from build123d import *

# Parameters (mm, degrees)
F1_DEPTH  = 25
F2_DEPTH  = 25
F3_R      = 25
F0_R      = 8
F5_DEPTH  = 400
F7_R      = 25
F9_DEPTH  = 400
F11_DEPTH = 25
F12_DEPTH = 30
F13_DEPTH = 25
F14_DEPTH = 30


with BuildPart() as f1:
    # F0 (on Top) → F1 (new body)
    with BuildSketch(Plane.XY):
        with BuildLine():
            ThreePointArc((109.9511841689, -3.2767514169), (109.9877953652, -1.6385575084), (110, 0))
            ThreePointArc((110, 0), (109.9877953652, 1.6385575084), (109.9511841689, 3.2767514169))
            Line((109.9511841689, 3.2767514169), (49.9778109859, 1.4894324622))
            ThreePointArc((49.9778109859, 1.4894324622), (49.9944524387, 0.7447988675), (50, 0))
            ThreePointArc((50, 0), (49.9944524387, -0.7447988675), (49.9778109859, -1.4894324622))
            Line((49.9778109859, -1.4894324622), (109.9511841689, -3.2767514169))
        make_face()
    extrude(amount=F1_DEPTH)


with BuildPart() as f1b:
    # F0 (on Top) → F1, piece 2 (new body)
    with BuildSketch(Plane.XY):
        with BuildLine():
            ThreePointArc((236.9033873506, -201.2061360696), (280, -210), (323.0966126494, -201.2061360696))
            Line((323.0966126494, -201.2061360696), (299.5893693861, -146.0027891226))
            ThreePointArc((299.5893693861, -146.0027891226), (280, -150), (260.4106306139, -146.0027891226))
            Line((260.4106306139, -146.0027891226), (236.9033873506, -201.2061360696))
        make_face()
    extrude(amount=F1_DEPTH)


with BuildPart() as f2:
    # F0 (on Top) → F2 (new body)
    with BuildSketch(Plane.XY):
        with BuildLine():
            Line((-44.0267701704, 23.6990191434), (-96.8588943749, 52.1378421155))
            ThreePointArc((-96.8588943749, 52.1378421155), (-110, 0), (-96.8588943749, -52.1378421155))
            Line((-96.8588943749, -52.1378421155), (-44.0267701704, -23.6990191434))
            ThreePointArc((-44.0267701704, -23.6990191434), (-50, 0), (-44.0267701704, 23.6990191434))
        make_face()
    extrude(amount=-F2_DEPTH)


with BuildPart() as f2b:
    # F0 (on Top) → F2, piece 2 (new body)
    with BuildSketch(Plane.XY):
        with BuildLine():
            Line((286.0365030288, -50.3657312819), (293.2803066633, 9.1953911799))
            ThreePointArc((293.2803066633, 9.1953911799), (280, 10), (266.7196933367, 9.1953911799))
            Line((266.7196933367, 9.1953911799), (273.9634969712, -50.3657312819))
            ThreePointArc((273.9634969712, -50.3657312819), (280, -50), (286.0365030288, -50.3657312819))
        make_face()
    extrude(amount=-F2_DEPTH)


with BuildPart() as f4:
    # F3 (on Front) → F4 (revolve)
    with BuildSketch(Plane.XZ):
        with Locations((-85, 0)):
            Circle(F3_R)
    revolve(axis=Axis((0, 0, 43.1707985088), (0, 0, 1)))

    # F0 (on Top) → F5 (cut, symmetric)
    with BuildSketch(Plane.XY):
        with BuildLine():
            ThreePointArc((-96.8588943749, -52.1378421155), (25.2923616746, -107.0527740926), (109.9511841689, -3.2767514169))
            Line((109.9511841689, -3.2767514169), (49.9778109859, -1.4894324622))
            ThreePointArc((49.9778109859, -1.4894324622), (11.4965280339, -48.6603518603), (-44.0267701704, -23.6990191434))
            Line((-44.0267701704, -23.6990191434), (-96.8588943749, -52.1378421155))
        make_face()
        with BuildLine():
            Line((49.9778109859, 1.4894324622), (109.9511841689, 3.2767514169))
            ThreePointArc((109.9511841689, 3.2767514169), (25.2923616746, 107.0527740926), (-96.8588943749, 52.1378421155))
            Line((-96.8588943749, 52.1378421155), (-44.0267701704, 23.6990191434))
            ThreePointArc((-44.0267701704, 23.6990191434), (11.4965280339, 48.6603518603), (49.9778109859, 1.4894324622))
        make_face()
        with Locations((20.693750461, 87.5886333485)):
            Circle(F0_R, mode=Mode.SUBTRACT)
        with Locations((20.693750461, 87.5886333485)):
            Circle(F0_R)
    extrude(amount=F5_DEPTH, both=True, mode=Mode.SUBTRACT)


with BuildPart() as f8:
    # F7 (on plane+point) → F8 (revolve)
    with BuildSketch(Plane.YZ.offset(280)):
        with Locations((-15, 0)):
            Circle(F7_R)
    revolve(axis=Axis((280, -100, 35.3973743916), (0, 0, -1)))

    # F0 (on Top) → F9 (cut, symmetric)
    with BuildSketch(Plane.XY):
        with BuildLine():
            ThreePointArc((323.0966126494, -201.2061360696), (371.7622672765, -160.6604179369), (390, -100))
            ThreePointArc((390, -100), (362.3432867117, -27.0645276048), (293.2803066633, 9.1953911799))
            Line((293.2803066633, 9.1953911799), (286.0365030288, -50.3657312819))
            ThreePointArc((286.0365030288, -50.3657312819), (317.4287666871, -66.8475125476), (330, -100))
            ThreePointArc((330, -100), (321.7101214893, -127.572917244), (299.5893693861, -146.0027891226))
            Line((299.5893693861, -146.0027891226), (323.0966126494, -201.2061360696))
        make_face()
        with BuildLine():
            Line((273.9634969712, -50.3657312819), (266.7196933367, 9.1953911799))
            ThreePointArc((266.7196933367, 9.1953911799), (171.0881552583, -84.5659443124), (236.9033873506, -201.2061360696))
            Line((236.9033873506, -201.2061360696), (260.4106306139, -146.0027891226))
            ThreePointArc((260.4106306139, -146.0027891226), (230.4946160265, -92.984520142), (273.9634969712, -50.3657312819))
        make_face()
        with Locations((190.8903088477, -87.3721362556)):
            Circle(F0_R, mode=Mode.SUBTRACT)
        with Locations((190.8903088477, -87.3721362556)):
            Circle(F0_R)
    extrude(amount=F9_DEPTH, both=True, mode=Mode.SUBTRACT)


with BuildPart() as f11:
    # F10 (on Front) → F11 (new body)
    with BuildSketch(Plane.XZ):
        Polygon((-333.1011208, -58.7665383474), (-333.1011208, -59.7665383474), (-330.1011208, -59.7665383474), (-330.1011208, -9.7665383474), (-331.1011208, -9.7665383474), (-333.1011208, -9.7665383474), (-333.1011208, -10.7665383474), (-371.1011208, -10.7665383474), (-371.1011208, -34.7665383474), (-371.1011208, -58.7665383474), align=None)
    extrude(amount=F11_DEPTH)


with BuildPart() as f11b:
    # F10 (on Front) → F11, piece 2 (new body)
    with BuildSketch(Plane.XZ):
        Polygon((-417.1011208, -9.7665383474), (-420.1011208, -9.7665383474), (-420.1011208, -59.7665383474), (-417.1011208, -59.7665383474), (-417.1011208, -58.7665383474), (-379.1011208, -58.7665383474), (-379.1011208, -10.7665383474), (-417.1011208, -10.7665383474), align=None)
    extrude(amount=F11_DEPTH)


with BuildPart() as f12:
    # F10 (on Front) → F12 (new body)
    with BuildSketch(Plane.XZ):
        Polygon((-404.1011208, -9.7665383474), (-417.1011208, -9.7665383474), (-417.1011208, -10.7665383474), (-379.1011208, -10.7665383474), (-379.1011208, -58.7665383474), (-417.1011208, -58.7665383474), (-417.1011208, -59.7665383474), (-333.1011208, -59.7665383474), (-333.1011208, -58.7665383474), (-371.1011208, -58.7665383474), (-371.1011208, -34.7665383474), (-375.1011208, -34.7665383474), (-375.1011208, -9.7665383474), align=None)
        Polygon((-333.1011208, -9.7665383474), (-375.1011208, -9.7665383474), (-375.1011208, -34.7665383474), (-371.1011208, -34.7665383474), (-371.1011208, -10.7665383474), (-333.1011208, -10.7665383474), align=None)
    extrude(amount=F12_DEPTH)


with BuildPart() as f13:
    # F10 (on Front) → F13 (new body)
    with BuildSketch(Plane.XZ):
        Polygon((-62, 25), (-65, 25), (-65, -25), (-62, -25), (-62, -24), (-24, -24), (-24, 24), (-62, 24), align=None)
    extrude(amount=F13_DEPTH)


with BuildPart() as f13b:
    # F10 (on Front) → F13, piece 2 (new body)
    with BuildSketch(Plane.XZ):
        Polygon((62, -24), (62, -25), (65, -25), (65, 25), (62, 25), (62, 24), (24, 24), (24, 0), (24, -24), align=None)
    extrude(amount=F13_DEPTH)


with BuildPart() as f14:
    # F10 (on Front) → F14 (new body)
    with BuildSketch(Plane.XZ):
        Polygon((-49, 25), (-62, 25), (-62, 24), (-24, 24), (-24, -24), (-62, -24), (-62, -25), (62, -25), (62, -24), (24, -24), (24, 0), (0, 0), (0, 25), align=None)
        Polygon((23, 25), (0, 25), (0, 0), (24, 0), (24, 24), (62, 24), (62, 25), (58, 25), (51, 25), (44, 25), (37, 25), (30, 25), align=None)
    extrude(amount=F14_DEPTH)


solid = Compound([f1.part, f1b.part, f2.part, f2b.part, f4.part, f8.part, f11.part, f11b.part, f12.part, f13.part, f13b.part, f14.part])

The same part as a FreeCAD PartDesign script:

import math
import FreeCAD as App
import Part
import Sketcher
Q = App.Units.Quantity


def add_polygon(sketch, points):
    """Adds a closed chain of lines whose ends are joined by coincident constraints."""
    first, n = sketch.GeometryCount, len(points)
    for a, b in zip(points, points[1:] + points[:1]):
        sketch.addGeometry(Part.LineSegment(App.Vector(*a, 0), App.Vector(*b, 0)), False)
    for i in range(n):
        sketch.addConstraint(Sketcher.Constraint("Coincident", first + i, 2, first + (i + 1) % n, 1))

doc = App.newDocument("Part")
params = doc.addObject("Spreadsheet::Sheet", "Params")
for row, (alias, value) in enumerate([
    ("sketch1_radius", "110 mm"),
    ("sketch1_radius2", "50 mm"),
    ("pad1_length", "25 mm"),
    ("sketch2_radius", "110 mm"),
    ("sketch2_radius2", "50 mm"),
    ("pad2_length", "25 mm"),
    ("sketch3_radius", "110 mm"),
    ("sketch3_radius2", "50 mm"),
    ("pad3_length", "25 mm"),
    ("sketch4_radius", "110 mm"),
    ("sketch4_radius2", "50 mm"),
    ("pad4_length", "25 mm"),
    ("sketch5_diameter", "50 mm"),
    ("revolution_angle", "360 deg"),
    ("sketch6_radius", "110 mm"),
    ("sketch6_radius2", "50 mm"),
    ("pocket1_length", "800 mm"),
    ("sketch7_diameter", "50 mm"),
    ("sketch7_height", "10 mm"),
    ("revolution2_angle", "360 deg"),
    ("sketch8_radius", "110 mm"),
    ("sketch8_radius2", "50 mm"),
    ("pocket2_length", "800 mm"),
    ("sketch9_width", "3 mm"),
    ("sketch9_width2", "38 mm"),
    ("sketch9_height", "1 mm"),
    ("sketch9_height2", "50 mm"),
    ("pad5_length", "25 mm"),
    ("sketch10_width", "3 mm"),
    ("sketch10_width2", "38 mm"),
    ("sketch10_height", "50 mm"),
    ("sketch10_height2", "1 mm"),
    ("pad6_length", "25 mm"),
    ("sketch11_width", "38 mm"),
    ("sketch11_width2", "84 mm"),
    ("sketch11_height", "1 mm"),
    ("sketch11_height2", "48 mm"),
    ("pad7_length", "30 mm"),
    ("sketch12_width", "3 mm"),
    ("sketch12_width2", "38 mm"),
    ("sketch12_height", "50 mm"),
    ("sketch12_height2", "1 mm"),
    ("pad8_length", "25 mm"),
    ("sketch13_width", "3 mm"),
    ("sketch13_width2", "38 mm"),
    ("sketch13_height", "1 mm"),
    ("sketch13_height2", "50 mm"),
    ("pad9_length", "25 mm"),
    ("sketch14_width", "38 mm"),
    ("sketch14_width2", "124 mm"),
    ("sketch14_height", "1 mm"),
    ("sketch14_height2", "48 mm"),
    ("pad10_length", "30 mm"),
], start=1):
    params.set(f"A{row}", alias)
    params.set(f"B{row}", "=" + value)
    params.setAlias(f"B{row}", alias)

body = doc.addObject("PartDesign::Body", "Body")

sketch1 = body.newObject("Sketcher::SketchObject", "Sketch")
sketch1.AttachmentSupport = (doc.getObject("XY_Plane"), [""])
sketch1.MapMode = "FlatFace"
sketch1.addGeometry(Part.ArcOfCircle(Part.Circle(App.Vector(0, 0, 0), App.Vector(0, 0, 1), 110), math.radians(-1.71), math.radians(0)), False)
sketch1.addGeometry(Part.ArcOfCircle(Part.Circle(App.Vector(0, 0, 0), App.Vector(0, 0, 1), 110), math.radians(0), math.radians(1.71)), False)
sketch1.addGeometry(Part.LineSegment(App.Vector(110, 3.3, 0), App.Vector(50, 1.5, 0)), False)
sketch1.addGeometry(Part.ArcOfCircle(Part.Circle(App.Vector(0, 0, 0), App.Vector(0, 0, 1), 50), math.radians(0), math.radians(1.71)), False)
sketch1.addGeometry(Part.ArcOfCircle(Part.Circle(App.Vector(0, 0, 0), App.Vector(0, 0, 1), 50), math.radians(-1.71), math.radians(0)), False)
sketch1.addGeometry(Part.LineSegment(App.Vector(50, -1.5, 0), App.Vector(110, -3.3, 0)), False)
sketch1.addConstraint(Sketcher.Constraint("Tangent", 0, 2, 1, 1))
sketch1.addConstraint(Sketcher.Constraint("Coincident", 1, 2, 2, 1))
sketch1.addConstraint(Sketcher.Constraint("Coincident", 2, 2, 3, 2))
sketch1.addConstraint(Sketcher.Constraint("Tangent", 3, 1, 4, 2))
sketch1.addConstraint(Sketcher.Constraint("Coincident", 4, 1, 5, 1))
sketch1.addConstraint(Sketcher.Constraint("Coincident", 5, 2, 0, 1))
sketch1.addConstraint(Sketcher.Constraint("Coincident", 0, 3, -1, 1))
sketch1.addConstraint(Sketcher.Constraint("Coincident", 3, 3, -1, 1))
sketch1.addConstraint(Sketcher.Constraint("Equal", 0, 1))
sketch1.addConstraint(Sketcher.Constraint("Equal", 3, 4))
sketch1.addConstraint(Sketcher.Constraint("PointOnObject", 0, 2, -1))
sketch1.addConstraint(Sketcher.Constraint("PointOnObject", 3, 1, -1))
sketch1.addConstraint(Sketcher.Constraint("Vertical", 2, 2, 4, 1))
sketch1.addConstraint(Sketcher.Constraint("Vertical", 1, 2, 5, 2))
sketch1.addConstraint(Sketcher.Constraint("Radius", 0, Q("110 mm")))
sketch1.addConstraint(Sketcher.Constraint("Radius", 3, Q("50 mm")))
sketch1.addConstraint(Sketcher.Constraint("DistanceY", -1, 1, 1, 2, Q("3.276751 mm")))
sketch1.addConstraint(Sketcher.Constraint("DistanceX", -1, 1, 2, 2, Q("49.977811 mm")))
sketch1.setExpression("Constraints[14]", "Params.sketch1_radius")
sketch1.setExpression("Constraints[15]", "Params.sketch1_radius2")
pad1 = body.newObject("PartDesign::Pad", "Pad")
pad1.Profile = sketch1
pad1.setExpression("Length", "Params.pad1_length")
body2 = doc.addObject("PartDesign::Body", "Body001")

sketch2 = body2.newObject("Sketcher::SketchObject", "Sketch001")
sketch2.AttachmentSupport = (doc.getObject("XY_Plane001"), [""])
sketch2.MapMode = "FlatFace"
sketch2.addGeometry(Part.ArcOfCircle(Part.Circle(App.Vector(280, -100, 0), App.Vector(0, 0, 1), 110), math.radians(-113), math.radians(-67)), False)
sketch2.addGeometry(Part.LineSegment(App.Vector(323, -201, 0), App.Vector(300, -146, 0)), False)
sketch2.addGeometry(Part.ArcOfCircle(Part.Circle(App.Vector(280, -100, 0), App.Vector(0, 0, 1), 50), math.radians(-113), math.radians(-67)), False)
sketch2.addGeometry(Part.LineSegment(App.Vector(260, -146, 0), App.Vector(237, -201, 0)), False)
sketch2.addConstraint(Sketcher.Constraint("Coincident", 0, 2, 1, 1))
sketch2.addConstraint(Sketcher.Constraint("Coincident", 1, 2, 2, 2))
sketch2.addConstraint(Sketcher.Constraint("Coincident", 2, 1, 3, 1))
sketch2.addConstraint(Sketcher.Constraint("Coincident", 3, 2, 0, 1))
sketch2.addConstraint(Sketcher.Constraint("Coincident", 2, 3, 0, 3))
sketch2.addConstraint(Sketcher.Constraint("Horizontal", 1, 2, 2, 1))
sketch2.addConstraint(Sketcher.Constraint("Horizontal", 0, 2, 3, 2))
sketch2.addConstraint(Sketcher.Constraint("Radius", 0, Q("110 mm")))
sketch2.addConstraint(Sketcher.Constraint("Radius", 2, Q("50 mm")))
sketch2.addConstraint(Sketcher.Constraint("DistanceX", -1, 1, 0, 3, Q("280 mm")))
sketch2.addConstraint(Sketcher.Constraint("DistanceY", 0, 3, -1, 1, Q("100 mm")))
sketch2.addConstraint(Sketcher.Constraint("DistanceX", -1, 1, 1, 2, Q("299.589369 mm")))
sketch2.addConstraint(Sketcher.Constraint("DistanceX", -1, 1, 0, 2, Q("323.096613 mm")))
sketch2.setExpression("Constraints[7]", "Params.sketch2_radius")
sketch2.setExpression("Constraints[8]", "Params.sketch2_radius2")
pad2 = body2.newObject("PartDesign::Pad", "Pad001")
pad2.Profile = sketch2
pad2.setExpression("Length", "Params.pad2_length")
body3 = doc.addObject("PartDesign::Body", "Body002")

sketch3 = body3.newObject("Sketcher::SketchObject", "Sketch002")
sketch3.AttachmentSupport = (doc.getObject("XY_Plane002"), [""])
sketch3.MapMode = "FlatFace"
sketch3.addGeometry(Part.LineSegment(App.Vector(-44, 24, 0), App.Vector(-97, 52, 0)), False)
sketch3.addGeometry(Part.ArcOfCircle(Part.Circle(App.Vector(0, 0, 0), App.Vector(0, 0, 1), 110), math.radians(152), math.radians(208)), False)
sketch3.addGeometry(Part.LineSegment(App.Vector(-97, -52, 0), App.Vector(-44, -24, 0)), False)
sketch3.addGeometry(Part.ArcOfCircle(Part.Circle(App.Vector(0, 0, 0), App.Vector(0, 0, 1), 50), math.radians(152), math.radians(208)), False)
sketch3.addConstraint(Sketcher.Constraint("Coincident", 0, 2, 1, 1))
sketch3.addConstraint(Sketcher.Constraint("Coincident", 1, 2, 2, 1))
sketch3.addConstraint(Sketcher.Constraint("Coincident", 2, 2, 3, 2))
sketch3.addConstraint(Sketcher.Constraint("Coincident", 3, 1, 0, 1))
sketch3.addConstraint(Sketcher.Constraint("Coincident", 1, 3, -1, 1))
sketch3.addConstraint(Sketcher.Constraint("Coincident", 3, 3, -1, 1))
sketch3.addConstraint(Sketcher.Constraint("Vertical", 0, 2, 1, 2))
sketch3.addConstraint(Sketcher.Constraint("Vertical", 2, 2, 3, 1))
sketch3.addConstraint(Sketcher.Constraint("Radius", 1, Q("110 mm")))
sketch3.addConstraint(Sketcher.Constraint("Radius", 3, Q("50 mm")))
sketch3.addConstraint(Sketcher.Constraint("DistanceX", 2, 2, -1, 1, Q("44.02677 mm")))
sketch3.addConstraint(Sketcher.Constraint("DistanceY", 2, 2, 0, 2, Q("75.836861 mm")))
sketch3.setExpression("Constraints[8]", "Params.sketch3_radius")
sketch3.setExpression("Constraints[9]", "Params.sketch3_radius2")
pad3 = body3.newObject("PartDesign::Pad", "Pad002")
pad3.Profile = sketch3
pad3.setExpression("Length", "Params.pad3_length")
pad3.Reversed = True
body4 = doc.addObject("PartDesign::Body", "Body003")

sketch4 = body4.newObject("Sketcher::SketchObject", "Sketch003")
sketch4.AttachmentSupport = (doc.getObject("XY_Plane003"), [""])
sketch4.MapMode = "FlatFace"
sketch4.addGeometry(Part.LineSegment(App.Vector(286, -50, 0), App.Vector(293, 9, 0)), False)
sketch4.addGeometry(Part.ArcOfCircle(Part.Circle(App.Vector(280, -100, 0), App.Vector(0, 0, 1), 110), math.radians(83.07), math.radians(96.93)), False)
sketch4.addGeometry(Part.LineSegment(App.Vector(267, 9, 0), App.Vector(274, -50, 0)), False)
sketch4.addGeometry(Part.ArcOfCircle(Part.Circle(App.Vector(280, -100, 0), App.Vector(0, 0, 1), 50), math.radians(83.07), math.radians(96.93)), False)
sketch4.addConstraint(Sketcher.Constraint("Coincident", 0, 2, 1, 1))
sketch4.addConstraint(Sketcher.Constraint("Coincident", 1, 2, 2, 1))
sketch4.addConstraint(Sketcher.Constraint("Coincident", 2, 2, 3, 2))
sketch4.addConstraint(Sketcher.Constraint("Coincident", 3, 1, 0, 1))
sketch4.addConstraint(Sketcher.Constraint("Coincident", 3, 3, 1, 3))
sketch4.addConstraint(Sketcher.Constraint("Horizontal", 0, 2, 1, 2))
sketch4.addConstraint(Sketcher.Constraint("Horizontal", 2, 2, 3, 1))
sketch4.addConstraint(Sketcher.Constraint("Radius", 1, Q("110 mm")))
sketch4.addConstraint(Sketcher.Constraint("Radius", 3, Q("50 mm")))
sketch4.addConstraint(Sketcher.Constraint("DistanceX", -1, 1, 1, 3, Q("280 mm")))
sketch4.addConstraint(Sketcher.Constraint("DistanceY", 1, 3, -1, 1, Q("100 mm")))
sketch4.addConstraint(Sketcher.Constraint("DistanceY", -1, 1, 0, 2, Q("9.195391 mm")))
sketch4.addConstraint(Sketcher.Constraint("DistanceY", 2, 2, -1, 1, Q("50.365731 mm")))
sketch4.setExpression("Constraints[7]", "Params.sketch4_radius")
sketch4.setExpression("Constraints[8]", "Params.sketch4_radius2")
pad4 = body4.newObject("PartDesign::Pad", "Pad003")
pad4.Profile = sketch4
pad4.setExpression("Length", "Params.pad4_length")
pad4.Reversed = True
body5 = doc.addObject("PartDesign::Body", "Body004")
body5.AllowCompound = True

sketch5 = body5.newObject("Sketcher::SketchObject", "Sketch004")
sketch5.AttachmentSupport = (doc.getObject("XZ_Plane004"), [""])
sketch5.MapMode = "FlatFace"
sketch5.addGeometry(Part.Circle(App.Vector(-85, 0, 0), App.Vector(0, 0, 1), 25), False)
sketch5.addConstraint(Sketcher.Constraint("PointOnObject", 0, 3, -1))
sketch5.addConstraint(Sketcher.Constraint("Diameter", 0, Q("50 mm")))
sketch5.addConstraint(Sketcher.Constraint("DistanceX", 0, 3, -1, 1, Q("85 mm")))
sketch5.setExpression("Constraints[1]", "Params.sketch5_diameter")
revolution = body5.newObject("PartDesign::Revolution", "Revolution")
revolution.Profile = sketch5
revolution.ReferenceAxis = (sketch5, ["V_Axis"])
revolution.setExpression("Angle", "Params.revolution_angle")

sketch6 = body5.newObject("Sketcher::SketchObject", "Sketch005")
sketch6.AttachmentSupport = (doc.getObject("XY_Plane004"), [""])
sketch6.MapMode = "FlatFace"
sketch6.addGeometry(Part.ArcOfCircle(Part.Circle(App.Vector(0, 0, 0), App.Vector(0, 0, 1), 110), math.radians(-152), math.radians(-2)), False)
sketch6.addGeometry(Part.LineSegment(App.Vector(110, -3, 0), App.Vector(50, -1, 0)), False)
sketch6.addGeometry(Part.ArcOfCircle(Part.Circle(App.Vector(0, 0, 0), App.Vector(0, 0, 1), 50), math.radians(-152), math.radians(-2)), False)
sketch6.addGeometry(Part.LineSegment(App.Vector(-44, -24, 0), App.Vector(-97, -52, 0)), False)
sketch6.addGeometry(Part.LineSegment(App.Vector(50, 1, 0), App.Vector(110, 3, 0)), False)
sketch6.addGeometry(Part.ArcOfCircle(Part.Circle(App.Vector(0, 0, 0), App.Vector(0, 0, 1), 110), math.radians(2), math.radians(152)), False)
sketch6.addGeometry(Part.LineSegment(App.Vector(-97, 52, 0), App.Vector(-44, 24, 0)), False)
sketch6.addGeometry(Part.ArcOfCircle(Part.Circle(App.Vector(0, 0, 0), App.Vector(0, 0, 1), 50), math.radians(2), math.radians(152)), False)
sketch6.addConstraint(Sketcher.Constraint("Coincident", 0, 2, 1, 1))
sketch6.addConstraint(Sketcher.Constraint("Coincident", 1, 2, 2, 2))
sketch6.addConstraint(Sketcher.Constraint("Coincident", 2, 1, 3, 1))
sketch6.addConstraint(Sketcher.Constraint("Coincident", 3, 2, 0, 1))
sketch6.addConstraint(Sketcher.Constraint("Coincident", 4, 2, 5, 1))
sketch6.addConstraint(Sketcher.Constraint("Coincident", 5, 2, 6, 1))
sketch6.addConstraint(Sketcher.Constraint("Coincident", 6, 2, 7, 2))
sketch6.addConstraint(Sketcher.Constraint("Coincident", 7, 1, 4, 1))
sketch6.addConstraint(Sketcher.Constraint("Coincident", 0, 3, -1, 1))
sketch6.addConstraint(Sketcher.Constraint("Coincident", 2, 3, -1, 1))
sketch6.addConstraint(Sketcher.Constraint("Coincident", 5, 3, -1, 1))
sketch6.addConstraint(Sketcher.Constraint("Coincident", 7, 3, -1, 1))
sketch6.addConstraint(Sketcher.Constraint("Equal", 0, 5))
sketch6.addConstraint(Sketcher.Constraint("Equal", 2, 7))
sketch6.addConstraint(Sketcher.Constraint("Vertical", 0, 2, 4, 2))
sketch6.addConstraint(Sketcher.Constraint("Vertical", 3, 2, 5, 2))
sketch6.addConstraint(Sketcher.Constraint("Vertical", 2, 1, 6, 2))
sketch6.addConstraint(Sketcher.Constraint("Vertical", 1, 2, 7, 1))
sketch6.addConstraint(Sketcher.Constraint("Radius", 0, Q("110 mm")))
sketch6.addConstraint(Sketcher.Constraint("Radius", 2, Q("50 mm")))
sketch6.addConstraint(Sketcher.Constraint("DistanceY", 0, 2, -1, 1, Q("3.276751 mm")))
sketch6.addConstraint(Sketcher.Constraint("DistanceX", -1, 1, 1, 2, Q("49.977811 mm")))
sketch6.addConstraint(Sketcher.Constraint("DistanceX", 2, 1, -1, 1, Q("44.02677 mm")))
sketch6.addConstraint(Sketcher.Constraint("DistanceY", 2, 1, 5, 2, Q("75.836861 mm")))
sketch6.setExpression("Constraints[18]", "Params.sketch6_radius")
sketch6.setExpression("Constraints[19]", "Params.sketch6_radius2")
pocket1 = body5.newObject("PartDesign::Pocket", "Pocket")
pocket1.Profile = sketch6
pocket1.setExpression("Length", "Params.pocket1_length")
pocket1.Midplane = True
body6 = doc.addObject("PartDesign::Body", "Body005")
body6.AllowCompound = True

sketch7 = body6.newObject("Sketcher::SketchObject", "Sketch006")
sketch7.AttachmentSupport = (doc.getObject("YZ_Plane005"), [""])
sketch7.MapMode = "FlatFace"
sketch7.AttachmentOffset = App.Placement(App.Vector(0, 0, 280), App.Rotation())
sketch7.addGeometry(Part.Circle(App.Vector(-15, 0, 0), App.Vector(0, 0, 1), 25), False)
sketch7.addGeometry(Part.LineSegment(App.Vector(-100, 0, 0), App.Vector(-100, -10, 0)), True)
sketch7.addConstraint(Sketcher.Constraint("Vertical", 1))
sketch7.addConstraint(Sketcher.Constraint("PointOnObject", 0, 3, -1))
sketch7.addConstraint(Sketcher.Constraint("PointOnObject", 1, 1, -1))
sketch7.addConstraint(Sketcher.Constraint("Diameter", 0, Q("50 mm")))
sketch7.addConstraint(Sketcher.Constraint("DistanceY", 1, 2, 1, 1, Q("10 mm")))
sketch7.addConstraint(Sketcher.Constraint("DistanceX", 0, 3, -1, 1, Q("15 mm")))
sketch7.addConstraint(Sketcher.Constraint("DistanceX", 1, 1, -1, 1, Q("100 mm")))
sketch7.setExpression("Constraints[3]", "Params.sketch7_diameter")
sketch7.setExpression("Constraints[4]", "Params.sketch7_height")
revolution2 = body6.newObject("PartDesign::Revolution", "Revolution001")
revolution2.Profile = sketch7
revolution2.ReferenceAxis = (sketch7, ["Axis0"])
revolution2.setExpression("Angle", "Params.revolution2_angle")

sketch8 = body6.newObject("Sketcher::SketchObject", "Sketch007")
sketch8.AttachmentSupport = (doc.getObject("XY_Plane005"), [""])
sketch8.MapMode = "FlatFace"
sketch8.addGeometry(Part.ArcOfCircle(Part.Circle(App.Vector(280, -100, 0), App.Vector(0, 0, 1), 110), math.radians(-67), math.radians(83)), False)
sketch8.addGeometry(Part.LineSegment(App.Vector(293, 9, 0), App.Vector(286, -50, 0)), False)
sketch8.addGeometry(Part.ArcOfCircle(Part.Circle(App.Vector(280, -100, 0), App.Vector(0, 0, 1), 50), math.radians(0), math.radians(83)), False)
sketch8.addGeometry(Part.ArcOfCircle(Part.Circle(App.Vector(280, -100, 0), App.Vector(0, 0, 1), 50), math.radians(-67), math.radians(0)), False)
sketch8.addGeometry(Part.LineSegment(App.Vector(300, -146, 0), App.Vector(323, -201, 0)), False)
sketch8.addGeometry(Part.LineSegment(App.Vector(274, -50, 0), App.Vector(267, 9, 0)), False)
sketch8.addGeometry(Part.ArcOfCircle(Part.Circle(App.Vector(280, -100, 0), App.Vector(0, 0, 1), 110), math.radians(97), math.radians(247)), False)
sketch8.addGeometry(Part.LineSegment(App.Vector(237, -201, 0), App.Vector(260, -146, 0)), False)
sketch8.addGeometry(Part.ArcOfCircle(Part.Circle(App.Vector(280, -100, 0), App.Vector(0, 0, 1), 50), math.radians(97), math.radians(247)), False)
sketch8.addConstraint(Sketcher.Constraint("Coincident", 0, 2, 1, 1))
sketch8.addConstraint(Sketcher.Constraint("Coincident", 1, 2, 2, 2))
sketch8.addConstraint(Sketcher.Constraint("Tangent", 2, 1, 3, 2))
sketch8.addConstraint(Sketcher.Constraint("Coincident", 3, 1, 4, 1))
sketch8.addConstraint(Sketcher.Constraint("Coincident", 4, 2, 0, 1))
sketch8.addConstraint(Sketcher.Constraint("Coincident", 5, 2, 6, 1))
sketch8.addConstraint(Sketcher.Constraint("Coincident", 6, 2, 7, 1))
sketch8.addConstraint(Sketcher.Constraint("Coincident", 7, 2, 8, 2))
sketch8.addConstraint(Sketcher.Constraint("Coincident", 8, 1, 5, 1))
sketch8.addConstraint(Sketcher.Constraint("Coincident", 2, 3, 0, 3))
sketch8.addConstraint(Sketcher.Constraint("Coincident", 6, 3, 0, 3))
sketch8.addConstraint(Sketcher.Constraint("Coincident", 8, 3, 0, 3))
sketch8.addConstraint(Sketcher.Constraint("Equal", 2, 3))
sketch8.addConstraint(Sketcher.Constraint("Equal", 0, 6))
sketch8.addConstraint(Sketcher.Constraint("Equal", 3, 8))
sketch8.addConstraint(Sketcher.Constraint("Horizontal", 8, 3, 2, 1))
sketch8.addConstraint(Sketcher.Constraint("Horizontal", 0, 2, 5, 2))
sketch8.addConstraint(Sketcher.Constraint("Horizontal", 4, 2, 6, 2))
sketch8.addConstraint(Sketcher.Constraint("Horizontal", 3, 1, 7, 2))
sketch8.addConstraint(Sketcher.Constraint("Horizontal", 1, 2, 8, 1))
sketch8.addConstraint(Sketcher.Constraint("Radius", 0, Q("110 mm")))
sketch8.addConstraint(Sketcher.Constraint("Radius", 2, Q("50 mm")))
sketch8.addConstraint(Sketcher.Constraint("DistanceX", -1, 1, 0, 3, Q("280 mm")))
sketch8.addConstraint(Sketcher.Constraint("DistanceY", 0, 3, -1, 1, Q("100 mm")))
sketch8.addConstraint(Sketcher.Constraint("DistanceY", -1, 1, 0, 2, Q("9.195391 mm")))
sketch8.addConstraint(Sketcher.Constraint("DistanceY", 1, 2, -1, 1, Q("50.365731 mm")))
sketch8.addConstraint(Sketcher.Constraint("DistanceX", -1, 1, 3, 1, Q("299.589369 mm")))
sketch8.addConstraint(Sketcher.Constraint("DistanceX", -1, 1, 4, 2, Q("323.096613 mm")))
sketch8.setExpression("Constraints[20]", "Params.sketch8_radius")
sketch8.setExpression("Constraints[21]", "Params.sketch8_radius2")
pocket2 = body6.newObject("PartDesign::Pocket", "Pocket001")
pocket2.Profile = sketch8
pocket2.setExpression("Length", "Params.pocket2_length")
pocket2.Midplane = True
body7 = doc.addObject("PartDesign::Body", "Body006")

sketch9 = body7.newObject("Sketcher::SketchObject", "Sketch008")
sketch9.AttachmentSupport = (doc.getObject("XZ_Plane006"), [""])
sketch9.MapMode = "FlatFace"
add_polygon(sketch9, [(-333.1, -58.8), (-333.1, -59.8), (-330.1, -59.8), (-330.1, -9.8), (-333.1, -9.8), (-333.1, -10.8), (-371.1, -10.8), (-371.1, -58.8)])
sketch9.addConstraint(Sketcher.Constraint("Vertical", 0))
sketch9.addConstraint(Sketcher.Constraint("Horizontal", 1))
sketch9.addConstraint(Sketcher.Constraint("Vertical", 2))
sketch9.addConstraint(Sketcher.Constraint("Horizontal", 3))
sketch9.addConstraint(Sketcher.Constraint("Vertical", 4))
sketch9.addConstraint(Sketcher.Constraint("Horizontal", 5))
sketch9.addConstraint(Sketcher.Constraint("Vertical", 6))
sketch9.addConstraint(Sketcher.Constraint("Horizontal", 7))
sketch9.addConstraint(Sketcher.Constraint("Vertical", 0, 2, 3, 2))
sketch9.addConstraint(Sketcher.Constraint("Equal", 0, 4))
sketch9.addConstraint(Sketcher.Constraint("DistanceX", 1, 1, 1, 2, Q("3 mm")))
sketch9.addConstraint(Sketcher.Constraint("DistanceX", 5, 2, 5, 1, Q("38 mm")))
sketch9.addConstraint(Sketcher.Constraint("DistanceY", 0, 2, 0, 1, Q("1 mm")))
sketch9.addConstraint(Sketcher.Constraint("DistanceY", 2, 1, 2, 2, Q("50 mm")))
sketch9.addConstraint(Sketcher.Constraint("DistanceX", 0, 2, -1, 1, Q("333.101121 mm")))
sketch9.addConstraint(Sketcher.Constraint("DistanceY", 0, 2, -1, 1, Q("59.766538 mm")))
sketch9.setExpression("Constraints[18]", "Params.sketch9_width")
sketch9.setExpression("Constraints[19]", "Params.sketch9_width2")
sketch9.setExpression("Constraints[20]", "Params.sketch9_height")
sketch9.setExpression("Constraints[21]", "Params.sketch9_height2")
pad5 = body7.newObject("PartDesign::Pad", "Pad004")
pad5.Profile = sketch9
pad5.setExpression("Length", "Params.pad5_length")
body8 = doc.addObject("PartDesign::Body", "Body007")

sketch10 = body8.newObject("Sketcher::SketchObject", "Sketch009")
sketch10.AttachmentSupport = (doc.getObject("XZ_Plane007"), [""])
sketch10.MapMode = "FlatFace"
add_polygon(sketch10, [(-417.1, -9.8), (-420.1, -9.8), (-420.1, -59.8), (-417.1, -59.8), (-417.1, -58.8), (-379.1, -58.8), (-379.1, -10.8), (-417.1, -10.8)])
sketch10.addConstraint(Sketcher.Constraint("Horizontal", 0))
sketch10.addConstraint(Sketcher.Constraint("Vertical", 1))
sketch10.addConstraint(Sketcher.Constraint("Horizontal", 2))
sketch10.addConstraint(Sketcher.Constraint("Vertical", 3))
sketch10.addConstraint(Sketcher.Constraint("Horizontal", 4))
sketch10.addConstraint(Sketcher.Constraint("Vertical", 5))
sketch10.addConstraint(Sketcher.Constraint("Horizontal", 6))
sketch10.addConstraint(Sketcher.Constraint("Vertical", 7))
sketch10.addConstraint(Sketcher.Constraint("Vertical", 3, 2, 6, 2))
sketch10.addConstraint(Sketcher.Constraint("Equal", 3, 7))
sketch10.addConstraint(Sketcher.Constraint("DistanceX", 0, 2, 0, 1, Q("3 mm")))
sketch10.addConstraint(Sketcher.Constraint("DistanceX", 4, 1, 4, 2, Q("38 mm")))
sketch10.addConstraint(Sketcher.Constraint("DistanceY", 1, 2, 1, 1, Q("50 mm")))
sketch10.addConstraint(Sketcher.Constraint("DistanceY", 3, 1, 3, 2, Q("1 mm")))
sketch10.addConstraint(Sketcher.Constraint("DistanceX", 0, 2, -1, 1, Q("420.101121 mm")))
sketch10.addConstraint(Sketcher.Constraint("DistanceY", 0, 2, -1, 1, Q("9.766538 mm")))
sketch10.setExpression("Constraints[18]", "Params.sketch10_width")
sketch10.setExpression("Constraints[19]", "Params.sketch10_width2")
sketch10.setExpression("Constraints[20]", "Params.sketch10_height")
sketch10.setExpression("Constraints[21]", "Params.sketch10_height2")
pad6 = body8.newObject("PartDesign::Pad", "Pad005")
pad6.Profile = sketch10
pad6.setExpression("Length", "Params.pad6_length")
body9 = doc.addObject("PartDesign::Body", "Body008")

sketch11 = body9.newObject("Sketcher::SketchObject", "Sketch010")
sketch11.AttachmentSupport = (doc.getObject("XZ_Plane008"), [""])
sketch11.MapMode = "FlatFace"
add_polygon(sketch11, [(-417.1, -9.8), (-417.1, -10.8), (-379.1, -10.8), (-379.1, -58.8), (-417.1, -58.8), (-417.1, -59.8), (-333.1, -59.8), (-333.1, -58.8), (-371.1, -58.8), (-371.1, -10.8), (-333.1, -10.8), (-333.1, -9.8)])
sketch11.addConstraint(Sketcher.Constraint("Vertical", 0))
sketch11.addConstraint(Sketcher.Constraint("Horizontal", 1))
sketch11.addConstraint(Sketcher.Constraint("Vertical", 2))
sketch11.addConstraint(Sketcher.Constraint("Horizontal", 3))
sketch11.addConstraint(Sketcher.Constraint("Vertical", 4))
sketch11.addConstraint(Sketcher.Constraint("Horizontal", 5))
sketch11.addConstraint(Sketcher.Constraint("Vertical", 6))
sketch11.addConstraint(Sketcher.Constraint("Horizontal", 7))
sketch11.addConstraint(Sketcher.Constraint("Vertical", 8))
sketch11.addConstraint(Sketcher.Constraint("Horizontal", 9))
sketch11.addConstraint(Sketcher.Constraint("Vertical", 10))
sketch11.addConstraint(Sketcher.Constraint("Horizontal", 11))
sketch11.addConstraint(Sketcher.Constraint("Horizontal", 3, 2, 6, 2))
sketch11.addConstraint(Sketcher.Constraint("Horizontal", 1, 2, 8, 2))
sketch11.addConstraint(Sketcher.Constraint("Vertical", 0, 2, 3, 2))
sketch11.addConstraint(Sketcher.Constraint("Vertical", 6, 2, 9, 2))
sketch11.addConstraint(Sketcher.Constraint("Equal", 3, 7))
sketch11.addConstraint(Sketcher.Constraint("Equal", 0, 4))
sketch11.addConstraint(Sketcher.Constraint("DistanceX", 1, 1, 1, 2, Q("38 mm")))
sketch11.addConstraint(Sketcher.Constraint("DistanceX", 5, 1, 5, 2, Q("84 mm")))
sketch11.addConstraint(Sketcher.Constraint("DistanceY", 0, 2, 0, 1, Q("1 mm")))
sketch11.addConstraint(Sketcher.Constraint("DistanceY", 2, 2, 2, 1, Q("48 mm")))
sketch11.addConstraint(Sketcher.Constraint("DistanceX", 0, 2, -1, 1, Q("417.101121 mm")))
sketch11.addConstraint(Sketcher.Constraint("DistanceY", 0, 2, -1, 1, Q("10.766538 mm")))
sketch11.setExpression("Constraints[30]", "Params.sketch11_width")
sketch11.setExpression("Constraints[31]", "Params.sketch11_width2")
sketch11.setExpression("Constraints[32]", "Params.sketch11_height")
sketch11.setExpression("Constraints[33]", "Params.sketch11_height2")
pad7 = body9.newObject("PartDesign::Pad", "Pad006")
pad7.Profile = sketch11
pad7.setExpression("Length", "Params.pad7_length")
body10 = doc.addObject("PartDesign::Body", "Body009")

sketch12 = body10.newObject("Sketcher::SketchObject", "Sketch011")
sketch12.AttachmentSupport = (doc.getObject("XZ_Plane009"), [""])
sketch12.MapMode = "FlatFace"
add_polygon(sketch12, [(-62, 25), (-65, 25), (-65, -25), (-62, -25), (-62, -24), (-24, -24), (-24, 24), (-62, 24)])
sketch12.addConstraint(Sketcher.Constraint("Horizontal", 0))
sketch12.addConstraint(Sketcher.Constraint("Vertical", 1))
sketch12.addConstraint(Sketcher.Constraint("Horizontal", 2))
sketch12.addConstraint(Sketcher.Constraint("Vertical", 3))
sketch12.addConstraint(Sketcher.Constraint("Horizontal", 4))
sketch12.addConstraint(Sketcher.Constraint("Vertical", 5))
sketch12.addConstraint(Sketcher.Constraint("Horizontal", 6))
sketch12.addConstraint(Sketcher.Constraint("Vertical", 7))
sketch12.addConstraint(Sketcher.Constraint("Symmetric", 3, 2, 6, 2, -1))
sketch12.addConstraint(Sketcher.Constraint("Equal", 3, 7))
sketch12.addConstraint(Sketcher.Constraint("DistanceX", 0, 2, 0, 1, Q("3 mm")))
sketch12.addConstraint(Sketcher.Constraint("DistanceX", 4, 1, 4, 2, Q("38 mm")))
sketch12.addConstraint(Sketcher.Constraint("DistanceY", 1, 2, 1, 1, Q("50 mm")))
sketch12.addConstraint(Sketcher.Constraint("DistanceY", 3, 1, 3, 2, Q("1 mm")))
sketch12.addConstraint(Sketcher.Constraint("DistanceX", 0, 2, -1, 1, Q("65 mm")))
sketch12.setExpression("Constraints[18]", "Params.sketch12_width")
sketch12.setExpression("Constraints[19]", "Params.sketch12_width2")
sketch12.setExpression("Constraints[20]", "Params.sketch12_height")
sketch12.setExpression("Constraints[21]", "Params.sketch12_height2")
pad8 = body10.newObject("PartDesign::Pad", "Pad007")
pad8.Profile = sketch12
pad8.setExpression("Length", "Params.pad8_length")
body11 = doc.addObject("PartDesign::Body", "Body010")

sketch13 = body11.newObject("Sketcher::SketchObject", "Sketch012")
sketch13.AttachmentSupport = (doc.getObject("XZ_Plane010"), [""])
sketch13.MapMode = "FlatFace"
add_polygon(sketch13, [(62, -24), (62, -25), (65, -25), (65, 25), (62, 25), (62, 24), (24, 24), (24, -24)])
sketch13.addConstraint(Sketcher.Constraint("Vertical", 0))
sketch13.addConstraint(Sketcher.Constraint("Horizontal", 1))
sketch13.addConstraint(Sketcher.Constraint("Vertical", 2))
sketch13.addConstraint(Sketcher.Constraint("Horizontal", 3))
sketch13.addConstraint(Sketcher.Constraint("Vertical", 4))
sketch13.addConstraint(Sketcher.Constraint("Horizontal", 5))
sketch13.addConstraint(Sketcher.Constraint("Vertical", 6))
sketch13.addConstraint(Sketcher.Constraint("Horizontal", 7))
sketch13.addConstraint(Sketcher.Constraint("Symmetric", 0, 2, 3, 2, -1))
sketch13.addConstraint(Sketcher.Constraint("Equal", 0, 4))
sketch13.addConstraint(Sketcher.Constraint("DistanceX", 1, 1, 1, 2, Q("3 mm")))
sketch13.addConstraint(Sketcher.Constraint("DistanceX", 5, 2, 5, 1, Q("38 mm")))
sketch13.addConstraint(Sketcher.Constraint("DistanceY", 0, 2, 0, 1, Q("1 mm")))
sketch13.addConstraint(Sketcher.Constraint("DistanceY", 2, 1, 2, 2, Q("50 mm")))
sketch13.addConstraint(Sketcher.Constraint("DistanceX", -1, 1, 0, 2, Q("62 mm")))
sketch13.setExpression("Constraints[18]", "Params.sketch13_width")
sketch13.setExpression("Constraints[19]", "Params.sketch13_width2")
sketch13.setExpression("Constraints[20]", "Params.sketch13_height")
sketch13.setExpression("Constraints[21]", "Params.sketch13_height2")
pad9 = body11.newObject("PartDesign::Pad", "Pad008")
pad9.Profile = sketch13
pad9.setExpression("Length", "Params.pad9_length")
body12 = doc.addObject("PartDesign::Body", "Body011")

sketch14 = body12.newObject("Sketcher::SketchObject", "Sketch013")
sketch14.AttachmentSupport = (doc.getObject("XZ_Plane011"), [""])
sketch14.MapMode = "FlatFace"
add_polygon(sketch14, [(-62, 25), (-62, 24), (-24, 24), (-24, -24), (-62, -24), (-62, -25), (62, -25), (62, -24), (24, -24), (24, 24), (62, 24), (62, 25)])
sketch14.addConstraint(Sketcher.Constraint("Vertical", 0))
sketch14.addConstraint(Sketcher.Constraint("Horizontal", 1))
sketch14.addConstraint(Sketcher.Constraint("Vertical", 2))
sketch14.addConstraint(Sketcher.Constraint("Horizontal", 3))
sketch14.addConstraint(Sketcher.Constraint("Vertical", 4))
sketch14.addConstraint(Sketcher.Constraint("Horizontal", 5))
sketch14.addConstraint(Sketcher.Constraint("Vertical", 6))
sketch14.addConstraint(Sketcher.Constraint("Horizontal", 7))
sketch14.addConstraint(Sketcher.Constraint("Vertical", 8))
sketch14.addConstraint(Sketcher.Constraint("Horizontal", 9))
sketch14.addConstraint(Sketcher.Constraint("Vertical", 10))
sketch14.addConstraint(Sketcher.Constraint("Horizontal", 11))
sketch14.addConstraint(Sketcher.Constraint("Symmetric", 0, 2, 6, 2, -1, 1))
sketch14.addConstraint(Sketcher.Constraint("Symmetric", 2, 2, 8, 2, -1, 1))
sketch14.addConstraint(Sketcher.Constraint("Symmetric", 4, 2, 10, 2, -1, 1))
sketch14.addConstraint(Sketcher.Constraint("Symmetric", 3, 2, 6, 2, -2))
sketch14.addConstraint(Sketcher.Constraint("DistanceX", 1, 1, 1, 2, Q("38 mm")))
sketch14.addConstraint(Sketcher.Constraint("DistanceX", 5, 1, 5, 2, Q("124 mm")))
sketch14.addConstraint(Sketcher.Constraint("DistanceY", 0, 2, 0, 1, Q("1 mm")))
sketch14.addConstraint(Sketcher.Constraint("DistanceY", 2, 2, 2, 1, Q("48 mm")))
sketch14.setExpression("Constraints[28]", "Params.sketch14_width")
sketch14.setExpression("Constraints[29]", "Params.sketch14_width2")
sketch14.setExpression("Constraints[30]", "Params.sketch14_height")
sketch14.setExpression("Constraints[31]", "Params.sketch14_height2")
pad10 = body12.newObject("PartDesign::Pad", "Pad009")
pad10.Profile = sketch14
pad10.setExpression("Length", "Params.pad10_length")

doc.recompute()
